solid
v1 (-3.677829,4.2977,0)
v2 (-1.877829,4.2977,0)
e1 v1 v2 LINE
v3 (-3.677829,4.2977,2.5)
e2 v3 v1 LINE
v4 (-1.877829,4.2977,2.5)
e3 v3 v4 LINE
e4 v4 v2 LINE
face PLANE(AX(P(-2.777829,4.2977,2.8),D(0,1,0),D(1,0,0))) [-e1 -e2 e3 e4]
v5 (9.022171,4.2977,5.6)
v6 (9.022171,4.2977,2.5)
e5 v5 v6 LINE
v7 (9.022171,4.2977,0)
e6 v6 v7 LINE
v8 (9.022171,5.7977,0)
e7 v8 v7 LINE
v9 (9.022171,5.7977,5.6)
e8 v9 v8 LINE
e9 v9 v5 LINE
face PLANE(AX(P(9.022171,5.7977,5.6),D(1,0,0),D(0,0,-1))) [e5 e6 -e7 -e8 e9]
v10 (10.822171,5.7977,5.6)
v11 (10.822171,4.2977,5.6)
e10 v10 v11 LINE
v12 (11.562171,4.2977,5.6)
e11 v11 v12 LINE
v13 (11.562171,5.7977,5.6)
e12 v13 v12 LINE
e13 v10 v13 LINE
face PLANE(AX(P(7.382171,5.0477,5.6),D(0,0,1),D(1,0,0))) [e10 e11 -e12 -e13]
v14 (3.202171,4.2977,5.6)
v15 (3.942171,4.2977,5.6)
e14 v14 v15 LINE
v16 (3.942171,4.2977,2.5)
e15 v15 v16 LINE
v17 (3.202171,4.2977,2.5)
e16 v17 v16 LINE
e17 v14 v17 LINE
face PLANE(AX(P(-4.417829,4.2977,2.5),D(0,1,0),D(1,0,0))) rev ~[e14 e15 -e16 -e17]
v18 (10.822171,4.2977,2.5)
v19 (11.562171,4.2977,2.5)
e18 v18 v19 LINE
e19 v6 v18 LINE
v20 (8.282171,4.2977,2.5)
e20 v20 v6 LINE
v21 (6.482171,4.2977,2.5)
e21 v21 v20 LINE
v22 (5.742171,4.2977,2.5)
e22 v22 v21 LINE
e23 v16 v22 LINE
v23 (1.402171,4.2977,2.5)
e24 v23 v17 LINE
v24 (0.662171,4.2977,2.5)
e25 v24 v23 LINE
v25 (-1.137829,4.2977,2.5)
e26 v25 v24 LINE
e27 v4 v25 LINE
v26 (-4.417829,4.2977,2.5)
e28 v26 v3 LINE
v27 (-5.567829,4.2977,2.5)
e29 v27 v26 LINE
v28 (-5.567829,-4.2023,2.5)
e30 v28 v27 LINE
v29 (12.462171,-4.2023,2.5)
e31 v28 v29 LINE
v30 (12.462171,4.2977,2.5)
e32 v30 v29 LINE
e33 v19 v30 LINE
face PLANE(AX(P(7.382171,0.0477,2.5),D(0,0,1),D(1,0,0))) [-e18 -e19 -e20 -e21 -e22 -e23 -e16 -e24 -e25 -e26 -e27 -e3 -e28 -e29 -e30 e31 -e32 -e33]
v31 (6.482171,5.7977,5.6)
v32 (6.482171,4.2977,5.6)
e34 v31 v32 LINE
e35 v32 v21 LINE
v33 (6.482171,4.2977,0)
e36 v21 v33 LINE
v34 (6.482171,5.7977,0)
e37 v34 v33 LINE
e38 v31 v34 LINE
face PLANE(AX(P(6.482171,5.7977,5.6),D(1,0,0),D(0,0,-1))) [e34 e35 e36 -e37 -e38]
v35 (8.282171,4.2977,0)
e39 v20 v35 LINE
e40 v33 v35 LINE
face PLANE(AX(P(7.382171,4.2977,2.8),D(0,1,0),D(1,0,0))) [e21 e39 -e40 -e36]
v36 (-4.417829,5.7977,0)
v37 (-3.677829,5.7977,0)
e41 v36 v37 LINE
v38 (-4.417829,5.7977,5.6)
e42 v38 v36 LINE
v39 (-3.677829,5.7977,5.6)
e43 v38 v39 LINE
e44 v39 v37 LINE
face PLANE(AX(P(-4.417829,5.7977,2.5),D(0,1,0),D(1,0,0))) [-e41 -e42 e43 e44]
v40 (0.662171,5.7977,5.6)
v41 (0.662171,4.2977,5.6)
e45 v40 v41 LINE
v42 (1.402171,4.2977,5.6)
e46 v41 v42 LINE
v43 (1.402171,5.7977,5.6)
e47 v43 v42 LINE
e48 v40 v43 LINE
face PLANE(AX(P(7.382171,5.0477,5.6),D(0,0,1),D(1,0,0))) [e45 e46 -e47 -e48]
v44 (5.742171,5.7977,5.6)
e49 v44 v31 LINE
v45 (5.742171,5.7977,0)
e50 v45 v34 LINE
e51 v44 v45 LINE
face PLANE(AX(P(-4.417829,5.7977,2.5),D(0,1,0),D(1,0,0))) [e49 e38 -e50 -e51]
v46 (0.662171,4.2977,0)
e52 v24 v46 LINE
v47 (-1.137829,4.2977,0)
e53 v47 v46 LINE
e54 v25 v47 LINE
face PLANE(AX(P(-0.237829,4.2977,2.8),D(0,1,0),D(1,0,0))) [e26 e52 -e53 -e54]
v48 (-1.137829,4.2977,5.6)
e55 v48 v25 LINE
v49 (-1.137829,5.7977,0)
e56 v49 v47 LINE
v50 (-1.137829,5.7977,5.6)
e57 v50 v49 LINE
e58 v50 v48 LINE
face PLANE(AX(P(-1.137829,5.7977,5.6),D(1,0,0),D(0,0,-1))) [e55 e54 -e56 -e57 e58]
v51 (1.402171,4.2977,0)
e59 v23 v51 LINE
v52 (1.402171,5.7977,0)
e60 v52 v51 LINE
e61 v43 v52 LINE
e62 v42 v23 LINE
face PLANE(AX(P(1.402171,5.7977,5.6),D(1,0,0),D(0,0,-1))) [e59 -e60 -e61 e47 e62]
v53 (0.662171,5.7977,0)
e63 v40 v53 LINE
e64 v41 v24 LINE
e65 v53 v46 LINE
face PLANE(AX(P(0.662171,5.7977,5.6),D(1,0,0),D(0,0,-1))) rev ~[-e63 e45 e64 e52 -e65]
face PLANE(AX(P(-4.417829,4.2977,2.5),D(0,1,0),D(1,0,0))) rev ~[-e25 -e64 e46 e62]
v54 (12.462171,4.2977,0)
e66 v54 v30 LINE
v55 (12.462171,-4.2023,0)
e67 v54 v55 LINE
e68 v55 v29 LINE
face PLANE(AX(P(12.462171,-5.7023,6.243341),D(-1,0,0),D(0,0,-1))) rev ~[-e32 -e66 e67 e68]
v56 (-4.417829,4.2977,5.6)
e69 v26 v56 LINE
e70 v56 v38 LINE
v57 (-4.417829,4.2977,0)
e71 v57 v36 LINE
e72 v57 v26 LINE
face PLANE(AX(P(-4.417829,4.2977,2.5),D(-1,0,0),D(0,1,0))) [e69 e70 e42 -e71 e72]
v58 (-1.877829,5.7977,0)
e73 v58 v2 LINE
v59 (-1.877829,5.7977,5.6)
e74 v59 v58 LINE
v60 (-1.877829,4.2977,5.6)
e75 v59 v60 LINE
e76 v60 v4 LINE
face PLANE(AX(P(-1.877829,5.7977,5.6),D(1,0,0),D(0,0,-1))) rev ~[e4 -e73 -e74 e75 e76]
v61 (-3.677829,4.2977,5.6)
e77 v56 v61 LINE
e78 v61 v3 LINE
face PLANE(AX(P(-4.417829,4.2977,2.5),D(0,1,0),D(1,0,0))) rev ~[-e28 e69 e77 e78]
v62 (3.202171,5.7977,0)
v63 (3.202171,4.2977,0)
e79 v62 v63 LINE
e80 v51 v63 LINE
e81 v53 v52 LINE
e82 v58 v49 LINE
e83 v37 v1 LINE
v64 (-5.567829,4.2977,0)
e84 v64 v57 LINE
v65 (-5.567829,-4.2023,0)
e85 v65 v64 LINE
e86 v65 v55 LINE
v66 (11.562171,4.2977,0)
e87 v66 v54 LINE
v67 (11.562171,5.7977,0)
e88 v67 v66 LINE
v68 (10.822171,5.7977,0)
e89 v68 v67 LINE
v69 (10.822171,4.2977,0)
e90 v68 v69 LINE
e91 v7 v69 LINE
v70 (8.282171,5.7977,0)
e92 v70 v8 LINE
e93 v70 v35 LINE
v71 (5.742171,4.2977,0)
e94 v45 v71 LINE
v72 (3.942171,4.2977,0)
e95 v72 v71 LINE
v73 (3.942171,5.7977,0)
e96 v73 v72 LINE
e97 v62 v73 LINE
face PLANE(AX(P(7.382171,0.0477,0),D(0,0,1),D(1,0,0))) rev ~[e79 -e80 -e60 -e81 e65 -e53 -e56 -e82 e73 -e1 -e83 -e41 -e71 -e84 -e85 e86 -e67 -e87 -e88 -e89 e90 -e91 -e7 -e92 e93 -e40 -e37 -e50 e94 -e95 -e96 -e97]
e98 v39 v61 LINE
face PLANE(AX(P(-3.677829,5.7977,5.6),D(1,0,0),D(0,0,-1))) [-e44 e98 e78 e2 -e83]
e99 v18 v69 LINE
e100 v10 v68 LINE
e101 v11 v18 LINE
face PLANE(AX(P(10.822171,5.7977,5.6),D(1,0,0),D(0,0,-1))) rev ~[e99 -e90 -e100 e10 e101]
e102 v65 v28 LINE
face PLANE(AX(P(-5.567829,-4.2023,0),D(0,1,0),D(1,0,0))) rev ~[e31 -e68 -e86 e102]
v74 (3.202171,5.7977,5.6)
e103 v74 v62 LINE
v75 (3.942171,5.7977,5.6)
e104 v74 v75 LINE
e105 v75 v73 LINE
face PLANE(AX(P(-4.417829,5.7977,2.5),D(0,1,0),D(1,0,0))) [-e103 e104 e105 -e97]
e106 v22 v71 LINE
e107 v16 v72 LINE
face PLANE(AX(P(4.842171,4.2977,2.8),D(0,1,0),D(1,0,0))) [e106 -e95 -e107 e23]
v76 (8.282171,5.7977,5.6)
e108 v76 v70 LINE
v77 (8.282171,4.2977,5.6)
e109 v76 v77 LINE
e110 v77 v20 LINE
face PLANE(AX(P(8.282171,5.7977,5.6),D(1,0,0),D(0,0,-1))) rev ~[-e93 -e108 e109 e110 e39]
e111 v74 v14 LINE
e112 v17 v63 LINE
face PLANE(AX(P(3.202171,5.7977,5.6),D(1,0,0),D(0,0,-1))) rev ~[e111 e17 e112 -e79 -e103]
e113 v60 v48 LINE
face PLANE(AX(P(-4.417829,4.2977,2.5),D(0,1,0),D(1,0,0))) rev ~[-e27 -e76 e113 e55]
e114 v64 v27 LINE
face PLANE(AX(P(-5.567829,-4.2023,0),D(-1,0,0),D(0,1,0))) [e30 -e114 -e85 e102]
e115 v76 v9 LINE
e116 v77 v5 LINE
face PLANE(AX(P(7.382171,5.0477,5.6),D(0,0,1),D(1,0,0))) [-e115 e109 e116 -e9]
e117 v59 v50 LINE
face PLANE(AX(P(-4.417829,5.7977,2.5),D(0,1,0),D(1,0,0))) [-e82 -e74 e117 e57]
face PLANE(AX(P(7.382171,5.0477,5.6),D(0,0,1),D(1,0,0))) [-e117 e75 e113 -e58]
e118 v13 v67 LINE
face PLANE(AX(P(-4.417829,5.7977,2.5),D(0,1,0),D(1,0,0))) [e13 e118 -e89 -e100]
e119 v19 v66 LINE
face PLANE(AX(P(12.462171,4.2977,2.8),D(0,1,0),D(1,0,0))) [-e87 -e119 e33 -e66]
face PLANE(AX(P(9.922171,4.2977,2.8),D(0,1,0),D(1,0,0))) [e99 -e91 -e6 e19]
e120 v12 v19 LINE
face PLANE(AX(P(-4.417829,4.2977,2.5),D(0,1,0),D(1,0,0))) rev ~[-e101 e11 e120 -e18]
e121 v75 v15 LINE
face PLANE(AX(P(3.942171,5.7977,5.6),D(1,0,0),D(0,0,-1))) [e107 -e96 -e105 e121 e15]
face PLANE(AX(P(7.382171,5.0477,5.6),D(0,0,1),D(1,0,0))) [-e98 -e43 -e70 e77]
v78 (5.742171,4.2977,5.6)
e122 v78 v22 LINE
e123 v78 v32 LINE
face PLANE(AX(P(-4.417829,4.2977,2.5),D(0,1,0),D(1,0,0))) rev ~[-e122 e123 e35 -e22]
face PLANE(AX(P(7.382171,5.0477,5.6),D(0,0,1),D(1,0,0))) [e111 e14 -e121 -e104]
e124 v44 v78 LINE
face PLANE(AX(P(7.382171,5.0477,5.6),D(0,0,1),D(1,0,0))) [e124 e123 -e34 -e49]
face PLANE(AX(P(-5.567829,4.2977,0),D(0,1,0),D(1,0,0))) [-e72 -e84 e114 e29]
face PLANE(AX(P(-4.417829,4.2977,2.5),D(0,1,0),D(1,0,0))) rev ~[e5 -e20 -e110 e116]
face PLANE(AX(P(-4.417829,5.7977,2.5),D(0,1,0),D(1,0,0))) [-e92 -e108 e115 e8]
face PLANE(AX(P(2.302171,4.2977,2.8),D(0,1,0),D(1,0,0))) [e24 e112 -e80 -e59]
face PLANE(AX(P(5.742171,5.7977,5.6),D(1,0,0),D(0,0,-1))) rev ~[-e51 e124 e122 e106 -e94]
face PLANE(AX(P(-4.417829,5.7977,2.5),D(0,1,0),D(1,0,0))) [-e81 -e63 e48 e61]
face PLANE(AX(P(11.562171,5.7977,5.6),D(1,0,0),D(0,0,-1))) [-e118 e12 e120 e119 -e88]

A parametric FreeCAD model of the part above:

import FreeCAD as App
import Part
import Sketcher

V = App.Vector
Q = App.Units.Quantity

doc = App.newDocument("Part")
params = doc.addObject("Spreadsheet::Sheet", "Params")
for row, (alias, value) in enumerate([
    ("sketch1_width", "25.9 mm"),
    ("sketch1_height", "8.5 mm"),
    ("pad1_length", "2.5 mm"),
    ("sketch2_width", "23.6 mm"),
    ("sketch2_height", "1.5 mm"),
    ("pad2_length", "2.5 mm"),
    ("sketch3_width", "23.6 mm"),
    ("sketch3_height", "1.5 mm"),
    ("pad3_length", "3.1 mm"),
    ("sketch4_width", "1.8 mm"),
    ("sketch4_height", "5.6 mm"),
    ("pocket1_length", "1.5 mm"),
], start=1):
    params.set(f"A{row}", alias)
    params.set(f"B{row}", "=" + value)
    params.setAlias(f"B{row}", alias)

body = doc.addObject("PartDesign::Body", "Body")

# Sketch on XY plane
sketch1 = body.newObject("Sketcher::SketchObject", "Sketch")
sketch1.AttachmentSupport = (doc.getObject("XY_Plane"), [""])
sketch1.MapMode = "FlatFace"
sketch1.addGeometry([
    Part.LineSegment(V(-6, 4, 0), V(-6, -4, 0)),
    Part.LineSegment(V(-6, -4, 0), V(20, -4, 0)),
    Part.LineSegment(V(20, -4, 0), V(20, 4, 0)),
    Part.LineSegment(V(20, 4, 0), V(-6, 4, 0)),
], False)
sketch1.addConstraint([
    Sketcher.Constraint("Coincident", 0, 2, 1, 1),
    Sketcher.Constraint("Coincident", 1, 2, 2, 1),
    Sketcher.Constraint("Coincident", 2, 2, 3, 1),
    Sketcher.Constraint("Coincident", 3, 2, 0, 1),
    Sketcher.Constraint("Vertical", 0),
    Sketcher.Constraint("Horizontal", 1),
    Sketcher.Constraint("Vertical", 2),
    Sketcher.Constraint("Horizontal", 3),
    Sketcher.Constraint("DistanceX", 1, 1, 1, 2, Q("25.9 mm")),
    Sketcher.Constraint("DistanceY", 0, 2, 0, 1, Q("8.5 mm")),
    Sketcher.Constraint("DistanceY", 0, 2, -1, 1, Q("4.2023 mm")),
    Sketcher.Constraint("DistanceX", 0, 2, -1, 1, Q("5.567829 mm")),
])
sketch1.setExpression("Constraints[8]", "Params.sketch1_width")
sketch1.setExpression("Constraints[9]", "Params.sketch1_height")
pad1 = body.newObject("PartDesign::Pad", "Pad")
pad1.Profile = sketch1
pad1.setExpression("Length", "Params.pad1_length")

# Sketch on XY plane
sketch2 = body.newObject("Sketcher::SketchObject", "Sketch001")
sketch2.AttachmentSupport = (doc.getObject("XY_Plane"), [""])
sketch2.MapMode = "FlatFace"
sketch2.addGeometry([
    Part.LineSegment(V(-4.4, 5.8, 0), V(-4.4, 4.3, 0)),
    Part.LineSegment(V(-4.4, 4.3, 0), V(19.2, 4.3, 0)),
    Part.LineSegment(V(19.2, 4.3, 0), V(19.2, 5.8, 0)),
    Part.LineSegment(V(19.2, 5.8, 0), V(-4.4, 5.8, 0)),
], False)
sketch2.addConstraint([
    Sketcher.Constraint("Coincident", 0, 2, 1, 1),
    Sketcher.Constraint("Coincident", 1, 2, 2, 1),
    Sketcher.Constraint("Coincident", 2, 2, 3, 1),
    Sketcher.Constraint("Coincident", 3, 2, 0, 1),
    Sketcher.Constraint("Vertical", 0),
    Sketcher.Constraint("Horizontal", 1),
    Sketcher.Constraint("Vertical", 2),
    Sketcher.Constraint("Horizontal", 3),
    Sketcher.Constraint("DistanceX", 1, 1, 1, 2, Q("23.6 mm")),
    Sketcher.Constraint("DistanceY", 0, 2, 0, 1, Q("1.5 mm")),
    Sketcher.Constraint("DistanceY", -1, 1, 0, 2, Q("4.2977 mm")),
    Sketcher.Constraint("DistanceX", 0, 2, -1, 1, Q("4.417829 mm")),
])
sketch2.setExpression("Constraints[8]", "Params.sketch2_width")
sketch2.setExpression("Constraints[9]", "Params.sketch2_height")
pad2 = body.newObject("PartDesign::Pad", "Pad001")
pad2.Profile = sketch2
pad2.setExpression("Length", "Params.pad2_length")

# Sketch on XY plane
sketch3 = body.newObject("Sketcher::SketchObject", "Sketch002")
sketch3.AttachmentSupport = (doc.getObject("XY_Plane"), [""])
sketch3.MapMode = "FlatFace"
sketch3.AttachmentOffset = App.Placement(V(0, 0, 2.5), App.Rotation())
sketch3.addGeometry([
    Part.LineSegment(V(-4.4, 5.8, 0), V(-4.4, 4.3, 0)),
    Part.LineSegment(V(-4.4, 4.3, 0), V(19.2, 4.3, 0)),
    Part.LineSegment(V(19.2, 4.3, 0), V(19.2, 5.8, 0)),
    Part.LineSegment(V(19.2, 5.8, 0), V(-4.4, 5.8, 0)),
], False)
sketch3.addConstraint([
    Sketcher.Constraint("Coincident", 0, 2, 1, 1),
    Sketcher.Constraint("Coincident", 1, 2, 2, 1),
    Sketcher.Constraint("Coincident", 2, 2, 3, 1),
    Sketcher.Constraint("Coincident", 3, 2, 0, 1),
    Sketcher.Constraint("Vertical", 0),
    Sketcher.Constraint("Horizontal", 1),
    Sketcher.Constraint("Vertical", 2),
    Sketcher.Constraint("Horizontal", 3),
    Sketcher.Constraint("DistanceX", 1, 1, 1, 2, Q("23.6 mm")),
    Sketcher.Constraint("DistanceY", 0, 2, 0, 1, Q("1.5 mm")),
    Sketcher.Constraint("DistanceY", -1, 1, 0, 2, Q("4.2977 mm")),
    Sketcher.Constraint("DistanceX", 0, 2, -1, 1, Q("4.417829 mm")),
])
sketch3.setExpression("Constraints[8]", "Params.sketch3_width")
sketch3.setExpression("Constraints[9]", "Params.sketch3_height")
pad3 = body.newObject("PartDesign::Pad", "Pad002")
pad3.Profile = sketch3
pad3.setExpression("Length", "Params.pad3_length")

# Sketch on XZ plane
sketch4 = body.newObject("Sketcher::SketchObject", "Sketch003")
sketch4.AttachmentSupport = (doc.getObject("XZ_Plane"), [""])
sketch4.MapMode = "FlatFace"
sketch4.AttachmentOffset = App.Placement(V(0, 0, -5.7977), App.Rotation())
sketch4.addGeometry([
    Part.LineSegment(V(16.6, 0, 0), V(16.6, 5.6, 0)),  # 0
    Part.LineSegment(V(16.6, 5.6, 0), V(18.4, 5.6, 0)),  # 1
    Part.LineSegment(V(18.4, 5.6, 0), V(18.4, 0, 0)),  # 2
    Part.LineSegment(V(18.4, 0, 0), V(16.6, 0, 0)),  # 3
    Part.LineSegment(V(14.1, 0, 0), V(14.1, 5.6, 0)),  # 4
    Part.LineSegment(V(14.1, 5.6, 0), V(15.9, 5.6, 0)),  # 5
    Part.LineSegment(V(15.9, 5.6, 0), V(15.9, 0, 0)),  # 6
    Part.LineSegment(V(15.9, 0, 0), V(14.1, 0, 0)),  # 7
    Part.LineSegment(V(11.6, 0, 0), V(11.6, 5.6, 0)),  # 8
    Part.LineSegment(V(11.6, 5.6, 0), V(13.4, 5.6, 0)),  # 9
    Part.LineSegment(V(13.4, 5.6, 0), V(13.4, 0, 0)),  # 10
    Part.LineSegment(V(13.4, 0, 0), V(11.6, 0, 0)),  # 11
    Part.LineSegment(V(9, 0, 0), V(9, 5.6, 0)),  # 12
    Part.LineSegment(V(9, 5.6, 0), V(10.8, 5.6, 0)),  # 13
    Part.LineSegment(V(10.8, 5.6, 0), V(10.8, 0, 0)),  # 14
    Part.LineSegment(V(10.8, 0, 0), V(9, 0, 0)),  # 15
    Part.LineSegment(V(6.5, 0, 0), V(6.5, 5.6, 0)),  # 16
    Part.LineSegment(V(6.5, 5.6, 0), V(8.3, 5.6, 0)),  # 17
    Part.LineSegment(V(8.3, 5.6, 0), V(8.3, 0, 0)),  # 18
    Part.LineSegment(V(8.3, 0, 0), V(6.5, 0, 0)),  # 19
    Part.LineSegment(V(3.9, 0, 0), V(3.9, 5.6, 0)),  # 20
    Part.LineSegment(V(3.9, 5.6, 0), V(5.7, 5.6, 0)),  # 21
    Part.LineSegment(V(5.7, 5.6, 0), V(5.7, 0, 0)),  # 22
    Part.LineSegment(V(5.7, 0, 0), V(3.9, 0, 0)),  # 23
    Part.LineSegment(V(1.4, 0, 0), V(1.4, 5.6, 0)),  # 24
    Part.LineSegment(V(1.4, 5.6, 0), V(3.2, 5.6, 0)),  # 25
    Part.LineSegment(V(3.2, 5.6, 0), V(3.2, 0, 0)),  # 26
    Part.LineSegment(V(3.2, 0, 0), V(1.4, 0, 0)),  # 27
    Part.LineSegment(V(-1.1, 0, 0), V(-1.1, 5.6, 0)),  # 28
    Part.LineSegment(V(-1.1, 5.6, 0), V(0.7, 5.6, 0)),  # 29
    Part.LineSegment(V(0.7, 5.6, 0), V(0.7, 0, 0)),  # 30
    Part.LineSegment(V(0.7, 0, 0), V(-1.1, 0, 0)),  # 31
    Part.LineSegment(V(-3.7, 0, 0), V(-3.7, 5.6, 0)),  # 32
    Part.LineSegment(V(-3.7, 5.6, 0), V(-1.9, 5.6, 0)),  # 33
    Part.LineSegment(V(-1.9, 5.6, 0), V(-1.9, 0, 0)),  # 34
    Part.LineSegment(V(-1.9, 0, 0), V(-3.7, 0, 0)),  # 35
], False)
sketch4.addConstraint([
    Sketcher.Constraint("Coincident", 0, 2, 1, 1),
    Sketcher.Constraint("Coincident", 1, 2, 2, 1),
    Sketcher.Constraint("Coincident", 2, 2, 3, 1),
    Sketcher.Constraint("Coincident", 3, 2, 0, 1),
    Sketcher.Constraint("Coincident", 4, 2, 5, 1),
    Sketcher.Constraint("Coincident", 5, 2, 6, 1),
    Sketcher.Constraint("Coincident", 6, 2, 7, 1),
    Sketcher.Constraint("Coincident", 7, 2, 4, 1),
    Sketcher.Constraint("Coincident", 8, 2, 9, 1),
    Sketcher.Constraint("Coincident", 9, 2, 10, 1),
    Sketcher.Constraint("Coincident", 10, 2, 11, 1),
    Sketcher.Constraint("Coincident", 11, 2, 8, 1),
    Sketcher.Constraint("Coincident", 12, 2, 13, 1),
    Sketcher.Constraint("Coincident", 13, 2, 14, 1),
    Sketcher.Constraint("Coincident", 14, 2, 15, 1),
    Sketcher.Constraint("Coincident", 15, 2, 12, 1),
    Sketcher.Constraint("Coincident", 16, 2, 17, 1),
    Sketcher.Constraint("Coincident", 17, 2, 18, 1),
    Sketcher.Constraint("Coincident", 18, 2, 19, 1),
    Sketcher.Constraint("Coincident", 19, 2, 16, 1),
    Sketcher.Constraint("Coincident", 20, 2, 21, 1),
    Sketcher.Constraint("Coincident", 21, 2, 22, 1),
    Sketcher.Constraint("Coincident", 22, 2, 23, 1),
    Sketcher.Constraint("Coincident", 23, 2, 20, 1),
    Sketcher.Constraint("Coincident", 24, 2, 25, 1),
    Sketcher.Constraint("Coincident", 25, 2, 26, 1),
    Sketcher.Constraint("Coincident", 26, 2, 27, 1),
    Sketcher.Constraint("Coincident", 27, 2, 24, 1),
    Sketcher.Constraint("Coincident", 28, 2, 29, 1),
    Sketcher.Constraint("Coincident", 29, 2, 30, 1),
    Sketcher.Constraint("Coincident", 30, 2, 31, 1),
    Sketcher.Constraint("Coincident", 31, 2, 28, 1),
    Sketcher.Constraint("Coincident", 32, 2, 33, 1),
    Sketcher.Constraint("Coincident", 33, 2, 34, 1),
    Sketcher.Constraint("Coincident", 34, 2, 35, 1),
    Sketcher.Constraint("Coincident", 35, 2, 32, 1),
    Sketcher.Constraint("Vertical", 0),
    Sketcher.Constraint("Horizontal", 1),
    Sketcher.Constraint("Vertical", 2),
    Sketcher.Constraint("Horizontal", 3),
    Sketcher.Constraint("Vertical", 4),
    Sketcher.Constraint("Horizontal", 5),
    Sketcher.Constraint("Vertical", 6),
    Sketcher.Constraint("Horizontal", 7),
    Sketcher.Constraint("Vertical", 8),
    Sketcher.Constraint("Horizontal", 9),
    Sketcher.Constraint("Vertical", 10),
    Sketcher.Constraint("Horizontal", 11),
    Sketcher.Constraint("Vertical", 12),
    Sketcher.Constraint("Horizontal", 13),
    Sketcher.Constraint("Vertical", 14),
    Sketcher.Constraint("Horizontal", 15),
    Sketcher.Constraint("Vertical", 16),
    Sketcher.Constraint("Horizontal", 17),
    Sketcher.Constraint("Vertical", 18),
    Sketcher.Constraint("Horizontal", 19),
    Sketcher.Constraint("Vertical", 20),
    Sketcher.Constraint("Horizontal", 21),
    Sketcher.Constraint("Vertical", 22),
    Sketcher.Constraint("Horizontal", 23),
    Sketcher.Constraint("Vertical", 24),
    Sketcher.Constraint("Horizontal", 25),
    Sketcher.Constraint("Vertical", 26),
    Sketcher.Constraint("Horizontal", 27),
    Sketcher.Constraint("Vertical", 28),
    Sketcher.Constraint("Horizontal", 29),
    Sketcher.Constraint("Vertical", 30),
    Sketcher.Constraint("Horizontal", 31),
    Sketcher.Constraint("Vertical", 32),
    Sketcher.Constraint("Horizontal", 33),
    Sketcher.Constraint("Vertical", 34),
    Sketcher.Constraint("Horizontal", 35),
    Sketcher.Constraint("PointOnObject", 2, 2, -1),
    Sketcher.Constraint("PointOnObject", 6, 2, -1),
    Sketcher.Constraint("PointOnObject", 10, 2, -1),
    Sketcher.Constraint("PointOnObject", 14, 2, -1),
    Sketcher.Constraint("PointOnObject", 18, 2, -1),
    Sketcher.Constraint("PointOnObject", 22, 2, -1),
    Sketcher.Constraint("PointOnObject", 26, 2, -1),
    Sketcher.Constraint("PointOnObject", 30, 2, -1),
    Sketcher.Constraint("PointOnObject", 34, 2, -1),
    Sketcher.Constraint("Horizontal", 1, 2, 4, 2),
    Sketcher.Constraint("Horizontal", 5, 2, 8, 2),
    Sketcher.Constraint("Horizontal", 9, 2, 12, 2),
    Sketcher.Constraint("Horizontal", 13, 2, 16, 2),
    Sketcher.Constraint("Horizontal", 17, 2, 20, 2),
    Sketcher.Constraint("Horizontal", 21, 2, 24, 2),
    Sketcher.Constraint("Horizontal", 25, 2, 28, 2),
    Sketcher.Constraint("Horizontal", 29, 2, 32, 2),
    Sketcher.Constraint("Equal", 3, 5),
    Sketcher.Constraint("Equal", 7, 9),
    Sketcher.Constraint("Equal", 11, 13),
    Sketcher.Constraint("Equal", 15, 17),
    Sketcher.Constraint("Equal", 19, 21),
    Sketcher.Constraint("Equal", 23, 25),
    Sketcher.Constraint("Equal", 27, 29),
    Sketcher.Constraint("Equal", 31, 33),
    Sketcher.Constraint("DistanceX", 1, 1, 1, 2, Q("1.8 mm")),
    Sketcher.Constraint("DistanceY", 0, 1, 0, 2, Q("5.6 mm")),
    Sketcher.Constraint("DistanceX", 4, 2, 0, 2, Q("2.54 mm")),
    Sketcher.Constraint("DistanceX", 8, 2, 4, 2, Q("2.54 mm")),
    Sketcher.Constraint("DistanceX", 12, 2, 8, 2, Q("2.54 mm")),
    Sketcher.Constraint("DistanceX", 16, 2, 12, 2, Q("2.54 mm")),
    Sketcher.Constraint("DistanceX", 20, 2, 16, 2, Q("2.54 mm")),
    Sketcher.Constraint("DistanceX", 24, 2, 20, 2, Q("2.54 mm")),
    Sketcher.Constraint("DistanceX", 28, 2, 24, 2, Q("2.54 mm")),
    Sketcher.Constraint("DistanceX", 32, 2, 28, 2, Q("2.54 mm")),
    Sketcher.Constraint("DistanceX", -1, 1, 0, 2, Q("16.642171 mm")),
])
sketch4.setExpression("Constraints[97]", "Params.sketch4_width")
sketch4.setExpression("Constraints[98]", "Params.sketch4_height")
pocket1 = body.newObject("PartDesign::Pocket", "Pocket")
pocket1.Profile = sketch4
pocket1.setExpression("Length", "Params.pocket1_length")
pocket1.Reversed = True

# Sketch on XZ plane
sketch5 = body.newObject("Sketcher::SketchObject", "Sketch004")
sketch5.AttachmentSupport = (doc.getObject("XZ_Plane"), [""])
sketch5.MapMode = "FlatFace"
sketch5.AttachmentOffset = App.Placement(V(0, 0, -4.2977), App.Rotation())
sketch5.addGeometry([
    Part.LineSegment(V(12, -1, 0), V(12, 6, 0)),
    Part.LineSegment(V(12, 6, 0), V(21, 6, 0)),
    Part.LineSegment(V(21, 6, 0), V(21, -1, 0)),
    Part.LineSegment(V(21, -1, 0), V(12, -1, 0)),
], False)
sketch5.addConstraint([
    Sketcher.Constraint("Coincident", 0, 2, 1, 1),
    Sketcher.Constraint("Coincident", 1, 2, 2, 1),
    Sketcher.Constraint("Coincident", 2, 2, 3, 1),
    Sketcher.Constraint("Coincident", 3, 2, 0, 1),
    Sketcher.Constraint("Vertical", 0),
    Sketcher.Constraint("Horizontal", 1),
    Sketcher.Constraint("Vertical", 2),
    Sketcher.Constraint("Horizontal", 3),
    Sketcher.Constraint("DistanceX", 1, 1, 1, 2, Q("8.769979 mm")),
    Sketcher.Constraint("DistanceY", 0, 1, 0, 2, Q("7.72995 mm")),
    Sketcher.Constraint("DistanceX", -1, 1, 0, 2, Q("12.462171 mm")),
    Sketcher.Constraint("DistanceY", -1, 1, 0, 2, Q("6.243341 mm")),
])
pocket2 = body.newObject("PartDesign::Pocket", "Pocket001")
pocket2.Profile = sketch5
pocket2.Type = "ThroughAll"
pocket2.Midplane = True

doc.recompute()
